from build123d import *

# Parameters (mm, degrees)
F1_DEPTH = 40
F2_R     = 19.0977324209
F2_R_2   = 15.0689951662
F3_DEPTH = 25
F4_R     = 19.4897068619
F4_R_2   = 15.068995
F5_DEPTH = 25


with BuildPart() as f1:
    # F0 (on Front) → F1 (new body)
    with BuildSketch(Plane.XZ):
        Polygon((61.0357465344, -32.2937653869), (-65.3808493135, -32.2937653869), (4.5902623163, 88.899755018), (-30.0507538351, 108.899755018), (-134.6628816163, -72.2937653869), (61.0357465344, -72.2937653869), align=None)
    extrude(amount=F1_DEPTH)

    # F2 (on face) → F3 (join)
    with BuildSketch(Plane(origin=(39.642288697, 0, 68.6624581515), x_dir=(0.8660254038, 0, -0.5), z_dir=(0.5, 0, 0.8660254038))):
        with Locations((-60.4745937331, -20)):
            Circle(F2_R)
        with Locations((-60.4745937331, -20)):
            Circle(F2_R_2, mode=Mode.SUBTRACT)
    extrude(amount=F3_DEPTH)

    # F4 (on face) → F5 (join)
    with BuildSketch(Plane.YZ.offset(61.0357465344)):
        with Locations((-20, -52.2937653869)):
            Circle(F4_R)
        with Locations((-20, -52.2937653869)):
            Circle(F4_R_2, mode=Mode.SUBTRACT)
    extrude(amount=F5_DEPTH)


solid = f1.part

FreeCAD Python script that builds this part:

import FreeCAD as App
import Part
import Sketcher

V = App.Vector
Q = App.Units.Quantity

doc = App.newDocument("Part")
body = doc.addObject("PartDesign::Body", "Body")

# Sketch on XZ plane
sketch1 = body.newObject("Sketcher::SketchObject", "Sketch")
sketch1.AttachmentSupport = (doc.getObject("XZ_Plane"), [""])
sketch1.MapMode = "FlatFace"
sketch1.addGeometry([
    Part.LineSegment(V(61.035747, -32.293765, 0), V(-65.380849, -32.293765, 0)),  # 0
    Part.LineSegment(V(-65.380849, -32.293765, 0), V(4.590262, 88.899755, 0)),  # 1
    Part.LineSegment(V(4.590262, 88.899755, 0), V(-30.050754, 108.899755, 0)),  # 2
    Part.LineSegment(V(-30.050754, 108.899755, 0), V(-134.662882, -72.293765, 0)),  # 3
    Part.LineSegment(V(-134.662882, -72.293765, 0), V(61.035747, -72.293765, 0)),  # 4
    Part.LineSegment(V(61.035747, -72.293765, 0), V(61.035747, -32.293765, 0)),  # 5
], False)
sketch1.addConstraint([
    Sketcher.Constraint("Coincident", 0, 2, 1, 1),
    Sketcher.Constraint("Coincident", 1, 2, 2, 1),
    Sketcher.Constraint("Coincident", 2, 2, 3, 1),
    Sketcher.Constraint("Coincident", 3, 2, 4, 1),
    Sketcher.Constraint("Coincident", 4, 2, 5, 1),
    Sketcher.Constraint("Coincident", 5, 2, 0, 1),
    Sketcher.Constraint("Horizontal", 0),
    Sketcher.Constraint("Horizontal", 4),
    Sketcher.Constraint("Vertical", 5),
    Sketcher.Constraint("Perpendicular", 1, 2),
    Sketcher.Constraint("Perpendicular", 2, 3),
    Sketcher.Constraint("DistanceY", 5, 1, 5, 2, Q("40 mm")),
    Sketcher.Constraint("Angle", 1, Q("60 deg")),
    Sketcher.Constraint("Distance", 2, Q("40 mm")),
    Sketcher.Constraint("DistanceX", 4, 1, 4, 2, Q("195.698628 mm")),
    Sketcher.Constraint("DistanceX", 2, 2, 4, 2, Q("91.0865 mm")),
    Sketcher.Constraint("DistanceX", 0, 2, -1, 1, Q("65.380849 mm")),
    Sketcher.Constraint("DistanceY", 0, 2, -1, 1, Q("32.293765 mm")),
])
pad1 = body.newObject("PartDesign::Pad", "Pad")
pad1.Profile = sketch1
pad1.Length = 40

# Sketch on an angled plane
sketch2 = body.newObject("Sketcher::SketchObject", "Sketch001")
sketch2.Placement = App.Placement(V(39.642289, 0, 68.662458), App.Rotation(V(0.866025404, 0, -0.5), V(0, 1, 0), V(0.5, 0, 0.866025404), "ZXY"))
sketch2.addGeometry([
    Part.Circle(V(-60.474594, -20, 0), V(0, 0, 1), 19.097732),
    Part.Circle(V(-60.474594, -20, 0), V(0, 0, 1), 15.068995),
], False)
sketch2.addConstraint([
    Sketcher.Constraint("Coincident", 1, 3, 0, 3),
    Sketcher.Constraint("DistanceY", 0, 3, -1, 1, Q("20 mm")),
    Sketcher.Constraint("Diameter", 1, Q("30.13799 mm")),
    Sketcher.Constraint("Diameter", 0, Q("38.195465 mm")),
    Sketcher.Constraint("DistanceX", 0, 3, -1, 1, Q("60.474594 mm")),
])
pad2 = body.newObject("PartDesign::Pad", "Pad001")
pad2.Profile = sketch2
pad2.Length = 25

# Sketch on YZ plane
sketch3 = body.newObject("Sketcher::SketchObject", "Sketch002")
sketch3.AttachmentSupport = (doc.getObject("YZ_Plane"), [""])
sketch3.MapMode = "FlatFace"
sketch3.AttachmentOffset = App.Placement(V(0, 0, 61.035747), App.Rotation())
sketch3.addGeometry([
    Part.Circle(V(-20, -52.293765, 0), V(0, 0, 1), 19.489707),
    Part.Circle(V(-20, -52.293765, 0), V(0, 0, 1), 15.068995),
], False)
sketch3.addConstraint([
    Sketcher.Constraint("Coincident", 1, 3, 0, 3),
    Sketcher.Constraint("DistanceX", 0, 3, -1, 1, Q("20 mm")),
    Sketcher.Constraint("Diameter", 1, Q("30.13799 mm")),
    Sketcher.Constraint("Diameter", 0, Q("38.979414 mm")),
    Sketcher.Constraint("DistanceY", 0, 3, -1, 1, Q("52.293765 mm")),
])
pad3 = body.newObject("PartDesign::Pad", "Pad002")
pad3.Profile = sketch3
pad3.Length = 25

doc.recompute()
